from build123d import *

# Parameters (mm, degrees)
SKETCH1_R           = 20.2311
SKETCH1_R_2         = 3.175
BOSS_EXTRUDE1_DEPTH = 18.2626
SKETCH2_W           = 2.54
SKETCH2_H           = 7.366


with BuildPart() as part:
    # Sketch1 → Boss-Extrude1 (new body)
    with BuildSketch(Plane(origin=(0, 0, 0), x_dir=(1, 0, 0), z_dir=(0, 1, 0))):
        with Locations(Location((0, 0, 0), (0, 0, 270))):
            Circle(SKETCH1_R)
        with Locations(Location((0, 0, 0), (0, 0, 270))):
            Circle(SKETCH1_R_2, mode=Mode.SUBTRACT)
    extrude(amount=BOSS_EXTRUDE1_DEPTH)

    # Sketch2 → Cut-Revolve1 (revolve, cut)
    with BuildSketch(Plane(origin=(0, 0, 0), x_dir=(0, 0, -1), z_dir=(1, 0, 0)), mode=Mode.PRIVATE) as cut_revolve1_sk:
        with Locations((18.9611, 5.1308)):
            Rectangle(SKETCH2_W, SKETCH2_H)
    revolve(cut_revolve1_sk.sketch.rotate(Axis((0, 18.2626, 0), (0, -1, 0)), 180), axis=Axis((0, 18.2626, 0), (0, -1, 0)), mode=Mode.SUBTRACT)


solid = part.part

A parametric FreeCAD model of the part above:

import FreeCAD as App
import Part
import Sketcher
from FreeCAD import Vector
Q = App.Units.Quantity


def add_polygon(sketch, points):
    """Adds a closed chain of lines whose ends are joined by coincident constraints."""
    first, n = sketch.GeometryCount, len(points)
    for a, b in zip(points, points[1:] + points[:1]):
        sketch.addGeometry(Part.LineSegment(App.Vector(*a, 0), App.Vector(*b, 0)), False)
    for i in range(n):
        sketch.addConstraint(Sketcher.Constraint("Coincident", first + i, 2, first + (i + 1) % n, 1))

doc = App.newDocument("Part")
body = doc.addObject("PartDesign::Body", "Body")

# Sketch on XZ plane
sketch1 = doc.addObject("Sketcher::SketchObject", "Sketch")
body.addObject(sketch1)
sketch1.AttachmentSupport = (doc.XZ_Plane, [""])
sketch1.MapMode = "FlatFace"
sketch1.addGeometry([
    Part.Circle(Vector(0, 0, 0), Vector(0, 0, 1), 20.2),
    Part.Circle(Vector(0, 0, 0), Vector(0, 0, 1), 3.2),
], False)
sketch1.addConstraint([
    Sketcher.Constraint("Coincident", 0, 3, -1, 1),
    Sketcher.Constraint("Coincident", 1, 3, -1, 1),
    Sketcher.Constraint("Diameter", 1, Q("0.25 in")),
    Sketcher.Constraint("Diameter", 0, Q("1.593 in")),
])
pad1 = doc.addObject("PartDesign::Pad", "Pad")
body.addObject(pad1)
pad1.Profile = sketch1
pad1.Length = Q("0.719 in")
pad1.Reversed = True

# Sketch on YZ plane
sketch2 = doc.addObject("Sketcher::SketchObject", "Sketch001")
body.addObject(sketch2)
sketch2.AttachmentSupport = (doc.YZ_Plane, [""])
sketch2.MapMode = "FlatFace"
add_polygon(sketch2, [(8.8, -17.7), (1.4, -17.7), (1.4, -20.2), (8.8, -20.2)])  # lines 0-3
sketch2.addConstraint([
    Sketcher.Constraint("Horizontal", 0),
    Sketcher.Constraint("Vertical", 1),
    Sketcher.Constraint("Horizontal", 2),
    Sketcher.Constraint("Vertical", 3),
    Sketcher.Constraint("DistanceY", 1, 2, 1, 1, Q("0.1 in")),
    Sketcher.Constraint("DistanceX", 0, 2, 0, 1, Q("0.29 in")),
    Sketcher.Constraint("DistanceX", -1, 1, 0, 2, Q("0.057 in")),
    Sketcher.Constraint("DistanceY", 0, 2, -1, 1, Q("0.6965 in")),
])
groove = doc.addObject("PartDesign::Groove", "Groove")
body.addObject(groove)
groove.Profile = sketch2
groove.ReferenceAxis = (sketch2, ["H_Axis"])
groove.Angle = 360

doc.recompute()
